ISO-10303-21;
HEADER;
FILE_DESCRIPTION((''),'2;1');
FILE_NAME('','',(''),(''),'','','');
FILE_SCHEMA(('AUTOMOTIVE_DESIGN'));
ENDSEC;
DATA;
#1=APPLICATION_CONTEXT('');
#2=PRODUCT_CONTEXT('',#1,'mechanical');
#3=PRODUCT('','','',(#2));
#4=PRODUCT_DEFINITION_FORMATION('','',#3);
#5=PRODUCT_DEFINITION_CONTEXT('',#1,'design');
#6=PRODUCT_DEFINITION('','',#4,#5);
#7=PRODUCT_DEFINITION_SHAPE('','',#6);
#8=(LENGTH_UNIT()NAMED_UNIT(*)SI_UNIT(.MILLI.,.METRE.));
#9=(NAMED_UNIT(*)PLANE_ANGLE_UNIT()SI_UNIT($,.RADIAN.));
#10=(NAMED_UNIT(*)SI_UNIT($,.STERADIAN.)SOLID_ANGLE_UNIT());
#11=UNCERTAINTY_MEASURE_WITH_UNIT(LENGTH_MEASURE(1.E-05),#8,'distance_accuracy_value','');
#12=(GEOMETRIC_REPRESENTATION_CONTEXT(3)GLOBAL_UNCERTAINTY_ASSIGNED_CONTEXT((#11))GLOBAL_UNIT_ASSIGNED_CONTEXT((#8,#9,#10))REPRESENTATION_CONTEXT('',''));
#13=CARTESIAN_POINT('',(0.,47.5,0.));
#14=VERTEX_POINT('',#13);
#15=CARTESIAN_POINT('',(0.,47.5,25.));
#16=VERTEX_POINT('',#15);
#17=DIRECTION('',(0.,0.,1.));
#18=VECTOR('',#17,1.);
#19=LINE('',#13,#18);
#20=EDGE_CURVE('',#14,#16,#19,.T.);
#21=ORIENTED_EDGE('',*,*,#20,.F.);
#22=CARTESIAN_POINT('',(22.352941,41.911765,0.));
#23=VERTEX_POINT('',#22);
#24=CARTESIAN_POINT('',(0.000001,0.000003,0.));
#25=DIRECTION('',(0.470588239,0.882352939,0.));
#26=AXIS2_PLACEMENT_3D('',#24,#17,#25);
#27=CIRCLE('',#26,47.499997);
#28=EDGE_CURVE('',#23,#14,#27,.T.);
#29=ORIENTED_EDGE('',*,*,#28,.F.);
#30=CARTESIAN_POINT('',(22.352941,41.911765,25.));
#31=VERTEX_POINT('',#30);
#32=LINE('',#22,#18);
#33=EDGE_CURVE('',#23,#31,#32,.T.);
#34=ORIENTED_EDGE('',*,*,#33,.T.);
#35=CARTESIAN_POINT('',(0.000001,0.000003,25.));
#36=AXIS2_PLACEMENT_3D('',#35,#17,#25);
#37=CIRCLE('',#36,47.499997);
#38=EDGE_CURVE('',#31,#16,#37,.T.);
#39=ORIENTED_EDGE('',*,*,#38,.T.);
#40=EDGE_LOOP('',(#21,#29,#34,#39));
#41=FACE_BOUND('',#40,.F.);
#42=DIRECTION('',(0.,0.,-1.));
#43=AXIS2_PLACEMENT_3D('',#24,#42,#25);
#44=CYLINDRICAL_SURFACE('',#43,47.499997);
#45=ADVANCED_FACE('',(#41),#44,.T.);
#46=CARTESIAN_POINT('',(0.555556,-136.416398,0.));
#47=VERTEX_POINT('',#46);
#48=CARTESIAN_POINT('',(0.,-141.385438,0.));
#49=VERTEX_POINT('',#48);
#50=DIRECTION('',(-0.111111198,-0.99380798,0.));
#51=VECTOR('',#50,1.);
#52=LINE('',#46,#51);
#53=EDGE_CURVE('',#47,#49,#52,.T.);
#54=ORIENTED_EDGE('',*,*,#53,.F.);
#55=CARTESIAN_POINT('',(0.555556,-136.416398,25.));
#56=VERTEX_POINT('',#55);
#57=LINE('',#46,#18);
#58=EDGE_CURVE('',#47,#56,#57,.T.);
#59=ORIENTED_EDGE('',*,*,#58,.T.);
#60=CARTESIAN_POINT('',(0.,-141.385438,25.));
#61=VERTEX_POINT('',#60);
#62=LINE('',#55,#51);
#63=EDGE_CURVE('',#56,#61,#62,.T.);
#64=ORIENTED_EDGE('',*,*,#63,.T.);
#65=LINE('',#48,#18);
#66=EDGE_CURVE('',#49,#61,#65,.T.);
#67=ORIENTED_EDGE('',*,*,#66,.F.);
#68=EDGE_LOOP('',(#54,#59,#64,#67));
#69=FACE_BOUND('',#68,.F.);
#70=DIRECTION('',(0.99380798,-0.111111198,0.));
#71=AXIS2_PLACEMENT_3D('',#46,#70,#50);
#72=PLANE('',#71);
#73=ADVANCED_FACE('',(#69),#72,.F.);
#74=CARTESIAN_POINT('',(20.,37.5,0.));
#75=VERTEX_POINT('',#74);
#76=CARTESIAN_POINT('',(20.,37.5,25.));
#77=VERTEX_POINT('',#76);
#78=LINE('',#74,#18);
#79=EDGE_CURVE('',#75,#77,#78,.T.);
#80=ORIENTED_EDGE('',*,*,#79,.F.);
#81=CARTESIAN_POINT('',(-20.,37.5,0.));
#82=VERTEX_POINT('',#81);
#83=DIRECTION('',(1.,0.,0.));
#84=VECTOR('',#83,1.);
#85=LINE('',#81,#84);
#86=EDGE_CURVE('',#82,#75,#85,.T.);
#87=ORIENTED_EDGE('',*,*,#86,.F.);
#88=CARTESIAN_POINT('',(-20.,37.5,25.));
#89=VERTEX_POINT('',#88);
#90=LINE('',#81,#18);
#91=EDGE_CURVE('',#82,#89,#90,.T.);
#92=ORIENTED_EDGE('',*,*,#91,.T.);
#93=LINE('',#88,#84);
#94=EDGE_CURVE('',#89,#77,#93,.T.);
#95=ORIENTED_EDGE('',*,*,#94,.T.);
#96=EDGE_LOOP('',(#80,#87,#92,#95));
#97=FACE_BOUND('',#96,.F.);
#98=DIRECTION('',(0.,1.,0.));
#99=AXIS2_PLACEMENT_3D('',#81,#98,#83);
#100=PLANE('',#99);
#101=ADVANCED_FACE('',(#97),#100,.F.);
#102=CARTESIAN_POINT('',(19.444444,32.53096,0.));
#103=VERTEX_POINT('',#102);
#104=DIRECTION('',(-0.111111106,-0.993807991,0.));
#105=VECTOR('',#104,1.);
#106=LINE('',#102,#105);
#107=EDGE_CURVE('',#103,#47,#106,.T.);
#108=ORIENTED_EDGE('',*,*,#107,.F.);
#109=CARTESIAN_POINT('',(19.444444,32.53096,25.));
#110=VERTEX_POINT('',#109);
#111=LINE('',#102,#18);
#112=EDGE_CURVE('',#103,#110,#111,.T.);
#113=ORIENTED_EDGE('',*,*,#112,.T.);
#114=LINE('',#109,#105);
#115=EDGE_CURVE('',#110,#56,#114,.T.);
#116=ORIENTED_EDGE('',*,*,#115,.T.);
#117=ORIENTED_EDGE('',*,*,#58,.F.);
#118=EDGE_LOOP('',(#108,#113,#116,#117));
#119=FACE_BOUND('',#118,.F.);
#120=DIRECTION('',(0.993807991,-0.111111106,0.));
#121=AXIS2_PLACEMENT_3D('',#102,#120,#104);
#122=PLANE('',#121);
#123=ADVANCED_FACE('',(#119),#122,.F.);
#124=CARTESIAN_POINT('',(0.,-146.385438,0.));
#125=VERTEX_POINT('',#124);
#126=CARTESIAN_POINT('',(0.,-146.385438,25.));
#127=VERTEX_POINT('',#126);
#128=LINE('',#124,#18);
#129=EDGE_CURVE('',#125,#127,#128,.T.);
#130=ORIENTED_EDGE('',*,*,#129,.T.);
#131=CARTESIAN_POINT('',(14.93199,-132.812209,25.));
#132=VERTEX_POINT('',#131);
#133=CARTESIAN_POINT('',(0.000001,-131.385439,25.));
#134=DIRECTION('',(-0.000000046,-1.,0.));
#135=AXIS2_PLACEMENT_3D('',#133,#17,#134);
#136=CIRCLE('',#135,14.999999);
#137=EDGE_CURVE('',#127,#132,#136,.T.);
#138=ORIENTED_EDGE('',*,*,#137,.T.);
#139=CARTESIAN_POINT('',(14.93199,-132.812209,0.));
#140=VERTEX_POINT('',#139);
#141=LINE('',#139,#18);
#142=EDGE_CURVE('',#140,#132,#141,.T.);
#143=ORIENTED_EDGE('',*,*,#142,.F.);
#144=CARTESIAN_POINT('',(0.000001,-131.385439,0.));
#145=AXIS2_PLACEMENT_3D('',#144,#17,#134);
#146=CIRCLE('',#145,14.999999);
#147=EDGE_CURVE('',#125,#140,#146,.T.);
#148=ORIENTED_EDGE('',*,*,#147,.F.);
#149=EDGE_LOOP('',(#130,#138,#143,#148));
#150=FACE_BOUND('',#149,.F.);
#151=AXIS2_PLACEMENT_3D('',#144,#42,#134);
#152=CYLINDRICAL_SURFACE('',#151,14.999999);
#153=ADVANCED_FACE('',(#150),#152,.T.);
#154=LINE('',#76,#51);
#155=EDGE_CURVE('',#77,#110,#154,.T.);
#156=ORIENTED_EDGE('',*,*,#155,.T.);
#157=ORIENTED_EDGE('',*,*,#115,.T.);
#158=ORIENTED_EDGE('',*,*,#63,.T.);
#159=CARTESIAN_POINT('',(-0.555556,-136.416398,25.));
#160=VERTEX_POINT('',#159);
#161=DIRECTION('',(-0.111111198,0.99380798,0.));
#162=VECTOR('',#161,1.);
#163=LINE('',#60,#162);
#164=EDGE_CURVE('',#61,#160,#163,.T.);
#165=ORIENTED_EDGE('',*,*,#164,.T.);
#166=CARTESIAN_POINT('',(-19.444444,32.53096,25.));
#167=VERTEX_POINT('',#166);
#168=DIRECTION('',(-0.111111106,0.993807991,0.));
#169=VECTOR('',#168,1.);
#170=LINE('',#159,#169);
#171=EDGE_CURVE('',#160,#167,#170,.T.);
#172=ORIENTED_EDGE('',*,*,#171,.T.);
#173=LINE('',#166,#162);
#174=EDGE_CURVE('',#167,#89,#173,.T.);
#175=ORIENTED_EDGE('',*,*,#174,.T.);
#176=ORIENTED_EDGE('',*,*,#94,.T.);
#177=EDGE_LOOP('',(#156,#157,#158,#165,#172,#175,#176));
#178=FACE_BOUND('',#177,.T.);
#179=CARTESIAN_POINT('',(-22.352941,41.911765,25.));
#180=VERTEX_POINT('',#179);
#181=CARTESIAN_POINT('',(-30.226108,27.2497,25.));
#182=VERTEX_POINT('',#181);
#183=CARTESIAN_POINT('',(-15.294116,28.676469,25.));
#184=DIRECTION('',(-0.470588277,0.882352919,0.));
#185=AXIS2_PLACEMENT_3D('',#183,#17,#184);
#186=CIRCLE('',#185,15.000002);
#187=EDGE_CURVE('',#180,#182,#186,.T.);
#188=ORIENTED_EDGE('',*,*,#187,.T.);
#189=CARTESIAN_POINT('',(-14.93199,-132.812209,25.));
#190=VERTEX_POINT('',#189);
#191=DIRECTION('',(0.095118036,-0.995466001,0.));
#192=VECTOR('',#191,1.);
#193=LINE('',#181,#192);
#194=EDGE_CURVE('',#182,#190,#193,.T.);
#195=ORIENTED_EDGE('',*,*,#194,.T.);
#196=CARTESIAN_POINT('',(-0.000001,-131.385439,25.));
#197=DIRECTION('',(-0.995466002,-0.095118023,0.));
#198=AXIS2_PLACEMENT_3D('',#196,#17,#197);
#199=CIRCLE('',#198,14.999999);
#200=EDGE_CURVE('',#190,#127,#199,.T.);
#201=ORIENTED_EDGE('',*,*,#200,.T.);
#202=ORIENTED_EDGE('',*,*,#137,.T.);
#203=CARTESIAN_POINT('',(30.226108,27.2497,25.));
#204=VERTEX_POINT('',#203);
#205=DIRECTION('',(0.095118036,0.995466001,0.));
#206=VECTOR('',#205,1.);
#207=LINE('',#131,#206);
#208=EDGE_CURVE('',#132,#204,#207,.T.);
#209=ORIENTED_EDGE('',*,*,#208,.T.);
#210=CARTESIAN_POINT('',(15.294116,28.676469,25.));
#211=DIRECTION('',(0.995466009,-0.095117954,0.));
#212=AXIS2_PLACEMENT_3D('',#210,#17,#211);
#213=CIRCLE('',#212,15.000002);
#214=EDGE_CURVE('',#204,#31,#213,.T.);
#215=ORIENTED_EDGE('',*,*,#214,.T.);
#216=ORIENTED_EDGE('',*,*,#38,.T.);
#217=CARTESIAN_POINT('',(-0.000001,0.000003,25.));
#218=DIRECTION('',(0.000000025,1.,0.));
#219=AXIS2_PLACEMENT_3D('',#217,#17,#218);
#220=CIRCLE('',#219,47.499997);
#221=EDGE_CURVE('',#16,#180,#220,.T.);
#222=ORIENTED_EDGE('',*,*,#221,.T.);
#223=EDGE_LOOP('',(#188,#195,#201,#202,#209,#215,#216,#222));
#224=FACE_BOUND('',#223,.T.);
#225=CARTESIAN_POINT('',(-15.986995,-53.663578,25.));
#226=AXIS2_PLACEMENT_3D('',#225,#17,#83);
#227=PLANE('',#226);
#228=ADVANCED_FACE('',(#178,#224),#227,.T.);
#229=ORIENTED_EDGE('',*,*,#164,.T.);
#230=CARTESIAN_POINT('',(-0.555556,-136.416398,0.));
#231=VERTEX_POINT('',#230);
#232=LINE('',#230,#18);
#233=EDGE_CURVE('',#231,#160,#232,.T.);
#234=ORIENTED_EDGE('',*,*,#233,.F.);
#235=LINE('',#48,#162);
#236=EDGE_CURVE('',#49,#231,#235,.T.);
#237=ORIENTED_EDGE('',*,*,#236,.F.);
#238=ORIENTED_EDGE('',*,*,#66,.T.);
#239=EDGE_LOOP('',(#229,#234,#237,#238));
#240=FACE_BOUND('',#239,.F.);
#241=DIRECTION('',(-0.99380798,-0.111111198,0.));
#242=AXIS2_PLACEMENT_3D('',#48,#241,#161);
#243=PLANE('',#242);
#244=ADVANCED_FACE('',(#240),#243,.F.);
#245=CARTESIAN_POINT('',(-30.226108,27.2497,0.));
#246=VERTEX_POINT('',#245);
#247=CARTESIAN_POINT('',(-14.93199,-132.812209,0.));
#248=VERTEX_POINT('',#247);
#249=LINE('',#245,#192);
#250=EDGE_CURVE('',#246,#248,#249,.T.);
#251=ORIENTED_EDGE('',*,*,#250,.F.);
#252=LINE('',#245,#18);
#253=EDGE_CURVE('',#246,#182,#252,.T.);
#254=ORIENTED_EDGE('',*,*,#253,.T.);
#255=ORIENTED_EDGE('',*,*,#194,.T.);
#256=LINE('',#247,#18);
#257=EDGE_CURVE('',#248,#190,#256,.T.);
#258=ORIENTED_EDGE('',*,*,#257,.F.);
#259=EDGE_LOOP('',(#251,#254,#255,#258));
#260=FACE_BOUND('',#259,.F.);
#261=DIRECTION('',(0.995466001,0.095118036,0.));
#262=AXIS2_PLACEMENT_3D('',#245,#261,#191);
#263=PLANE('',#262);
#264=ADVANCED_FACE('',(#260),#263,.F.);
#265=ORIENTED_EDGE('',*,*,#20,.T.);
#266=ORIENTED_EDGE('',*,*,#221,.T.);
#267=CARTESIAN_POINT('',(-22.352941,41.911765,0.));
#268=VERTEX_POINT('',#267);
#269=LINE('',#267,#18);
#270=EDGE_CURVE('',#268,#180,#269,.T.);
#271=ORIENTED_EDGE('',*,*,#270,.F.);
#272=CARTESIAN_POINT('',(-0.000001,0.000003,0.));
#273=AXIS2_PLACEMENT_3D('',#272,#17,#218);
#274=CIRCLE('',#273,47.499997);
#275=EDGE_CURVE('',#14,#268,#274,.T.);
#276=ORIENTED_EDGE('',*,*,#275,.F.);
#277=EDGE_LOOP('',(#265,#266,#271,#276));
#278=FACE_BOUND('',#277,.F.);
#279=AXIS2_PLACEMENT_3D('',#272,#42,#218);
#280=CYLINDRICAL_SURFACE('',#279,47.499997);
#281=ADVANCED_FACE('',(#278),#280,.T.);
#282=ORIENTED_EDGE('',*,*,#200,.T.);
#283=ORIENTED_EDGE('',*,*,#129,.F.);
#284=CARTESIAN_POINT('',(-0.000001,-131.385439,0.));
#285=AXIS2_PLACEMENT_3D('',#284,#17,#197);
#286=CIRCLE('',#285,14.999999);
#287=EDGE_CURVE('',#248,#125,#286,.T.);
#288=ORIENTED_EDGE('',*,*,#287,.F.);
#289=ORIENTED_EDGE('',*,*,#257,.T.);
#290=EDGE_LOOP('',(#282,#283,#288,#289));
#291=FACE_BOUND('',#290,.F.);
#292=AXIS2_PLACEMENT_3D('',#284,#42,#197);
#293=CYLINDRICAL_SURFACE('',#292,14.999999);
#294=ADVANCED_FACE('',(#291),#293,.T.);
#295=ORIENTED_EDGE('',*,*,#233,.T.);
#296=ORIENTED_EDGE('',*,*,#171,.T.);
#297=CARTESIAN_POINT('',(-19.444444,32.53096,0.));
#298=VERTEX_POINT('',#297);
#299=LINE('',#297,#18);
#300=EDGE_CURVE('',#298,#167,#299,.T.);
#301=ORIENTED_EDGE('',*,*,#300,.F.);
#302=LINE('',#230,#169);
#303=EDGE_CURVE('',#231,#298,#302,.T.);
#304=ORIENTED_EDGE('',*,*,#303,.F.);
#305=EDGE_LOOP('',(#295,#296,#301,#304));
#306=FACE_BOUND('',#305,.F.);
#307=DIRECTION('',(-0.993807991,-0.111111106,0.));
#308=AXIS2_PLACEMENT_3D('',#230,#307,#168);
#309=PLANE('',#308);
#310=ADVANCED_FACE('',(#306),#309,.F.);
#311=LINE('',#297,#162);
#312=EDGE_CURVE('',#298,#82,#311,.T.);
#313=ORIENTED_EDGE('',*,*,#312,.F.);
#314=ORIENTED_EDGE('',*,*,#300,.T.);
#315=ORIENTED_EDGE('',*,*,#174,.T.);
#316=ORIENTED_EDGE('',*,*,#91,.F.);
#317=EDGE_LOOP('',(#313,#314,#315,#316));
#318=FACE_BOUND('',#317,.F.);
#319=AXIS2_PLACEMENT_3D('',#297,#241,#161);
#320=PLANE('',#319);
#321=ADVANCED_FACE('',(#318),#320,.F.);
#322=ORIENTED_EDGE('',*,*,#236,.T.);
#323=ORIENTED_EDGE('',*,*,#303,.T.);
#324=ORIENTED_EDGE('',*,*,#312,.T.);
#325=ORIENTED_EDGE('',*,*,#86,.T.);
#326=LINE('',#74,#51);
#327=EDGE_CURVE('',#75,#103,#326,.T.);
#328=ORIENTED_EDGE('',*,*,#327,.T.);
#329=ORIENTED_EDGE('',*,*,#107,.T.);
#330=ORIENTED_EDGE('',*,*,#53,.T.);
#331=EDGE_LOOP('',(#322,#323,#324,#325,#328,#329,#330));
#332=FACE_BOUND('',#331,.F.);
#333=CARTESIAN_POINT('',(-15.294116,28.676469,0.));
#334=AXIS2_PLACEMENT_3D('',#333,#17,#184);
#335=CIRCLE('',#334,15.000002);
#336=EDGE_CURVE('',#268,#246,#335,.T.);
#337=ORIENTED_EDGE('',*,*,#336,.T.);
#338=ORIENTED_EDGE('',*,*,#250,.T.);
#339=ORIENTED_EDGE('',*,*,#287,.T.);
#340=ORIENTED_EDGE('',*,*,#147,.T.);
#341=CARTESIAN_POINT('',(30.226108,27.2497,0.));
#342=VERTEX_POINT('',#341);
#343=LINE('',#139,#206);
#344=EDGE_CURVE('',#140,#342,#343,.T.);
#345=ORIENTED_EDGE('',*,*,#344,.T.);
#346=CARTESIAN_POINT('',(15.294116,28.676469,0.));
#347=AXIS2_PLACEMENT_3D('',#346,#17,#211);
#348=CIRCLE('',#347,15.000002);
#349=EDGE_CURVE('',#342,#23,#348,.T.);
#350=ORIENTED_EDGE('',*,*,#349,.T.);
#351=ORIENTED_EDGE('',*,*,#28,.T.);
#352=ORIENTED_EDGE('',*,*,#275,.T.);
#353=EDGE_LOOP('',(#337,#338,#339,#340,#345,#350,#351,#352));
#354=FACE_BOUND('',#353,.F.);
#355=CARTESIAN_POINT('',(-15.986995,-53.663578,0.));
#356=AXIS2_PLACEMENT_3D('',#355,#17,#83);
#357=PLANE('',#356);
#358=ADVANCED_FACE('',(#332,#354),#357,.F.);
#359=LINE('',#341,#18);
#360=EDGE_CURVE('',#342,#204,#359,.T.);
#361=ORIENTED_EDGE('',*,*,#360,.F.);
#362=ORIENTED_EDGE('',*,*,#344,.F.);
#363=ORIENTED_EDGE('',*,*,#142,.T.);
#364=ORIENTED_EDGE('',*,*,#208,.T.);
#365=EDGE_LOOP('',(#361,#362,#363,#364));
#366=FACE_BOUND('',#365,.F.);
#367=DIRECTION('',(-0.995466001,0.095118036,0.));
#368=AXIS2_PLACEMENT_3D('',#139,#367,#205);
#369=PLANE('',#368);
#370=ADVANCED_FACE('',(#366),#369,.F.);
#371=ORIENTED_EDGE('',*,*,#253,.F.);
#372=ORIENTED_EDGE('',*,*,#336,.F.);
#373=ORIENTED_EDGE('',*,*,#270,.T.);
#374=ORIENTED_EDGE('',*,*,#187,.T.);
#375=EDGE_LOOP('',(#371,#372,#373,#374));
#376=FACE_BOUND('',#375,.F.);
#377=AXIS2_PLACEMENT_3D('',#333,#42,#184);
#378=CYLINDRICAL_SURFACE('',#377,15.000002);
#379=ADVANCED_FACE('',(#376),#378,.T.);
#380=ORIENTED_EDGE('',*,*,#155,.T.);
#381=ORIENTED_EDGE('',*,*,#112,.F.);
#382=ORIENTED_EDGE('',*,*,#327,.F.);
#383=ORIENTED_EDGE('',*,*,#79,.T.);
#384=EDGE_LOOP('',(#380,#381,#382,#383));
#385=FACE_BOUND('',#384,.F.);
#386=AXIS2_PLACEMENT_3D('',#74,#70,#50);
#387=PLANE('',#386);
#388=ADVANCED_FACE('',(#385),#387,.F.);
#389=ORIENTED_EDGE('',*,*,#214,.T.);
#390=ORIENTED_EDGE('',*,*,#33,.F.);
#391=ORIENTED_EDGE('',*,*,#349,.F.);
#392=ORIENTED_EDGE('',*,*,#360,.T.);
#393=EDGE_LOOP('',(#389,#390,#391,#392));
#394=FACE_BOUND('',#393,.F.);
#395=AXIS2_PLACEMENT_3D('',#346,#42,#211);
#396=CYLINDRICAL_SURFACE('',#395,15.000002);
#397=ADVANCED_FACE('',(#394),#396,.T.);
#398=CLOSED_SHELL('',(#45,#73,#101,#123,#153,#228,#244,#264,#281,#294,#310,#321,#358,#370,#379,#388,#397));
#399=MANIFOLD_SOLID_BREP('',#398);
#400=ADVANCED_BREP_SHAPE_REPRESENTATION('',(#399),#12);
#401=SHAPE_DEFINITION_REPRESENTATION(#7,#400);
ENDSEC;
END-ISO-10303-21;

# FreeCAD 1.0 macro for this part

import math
import FreeCAD as App
import Part
import Sketcher

doc = App.newDocument("Part")
params = doc.addObject("Spreadsheet::Sheet", "Params")
for row, (alias, value) in enumerate([
    ("sketch1_radius", "15.000002 mm"),
    ("sketch1_radius2", "14.999999 mm"),
    ("sketch1_width", "40 mm"),
    ("sketch1_length", "170 mm"),
    ("sketch1_length2", "5 mm"),
    ("pad1_length", "25 mm"),
], start=1):
    params.set(f"A{row}", alias)
    params.set(f"B{row}", "=" + value)
    params.setAlias(f"B{row}", alias)

body = doc.addObject("PartDesign::Body", "Body")

sketch1 = doc.addObject("Sketcher::SketchObject", "Sketch")
body.addObject(sketch1)
sketch1.AttachmentSupport = (doc.XY_Plane, [""])
sketch1.MapMode = "FlatFace"
sketch1.addGeometry([
    Part.ArcOfCircle(Part.Circle(App.Vector(0, 0, 0), App.Vector(0, 0, 1), 47), math.radians(90), math.radians(118)),
    Part.ArcOfCircle(Part.Circle(App.Vector(-15, 29, 0), App.Vector(0, 0, 1), 15), math.radians(118), math.radians(185)),
    Part.LineSegment(App.Vector(-30, 27, 0), App.Vector(-15, -133, 0)),
    Part.ArcOfCircle(Part.Circle(App.Vector(0, -131, 0), App.Vector(0, 0, 1), 15), math.radians(-175), math.radians(-90)),
    Part.ArcOfCircle(Part.Circle(App.Vector(0, -131, 0), App.Vector(0, 0, 1), 15), math.radians(-90), math.radians(-5)),
    Part.LineSegment(App.Vector(15, -133, 0), App.Vector(30, 27, 0)),
    Part.ArcOfCircle(Part.Circle(App.Vector(15, 29, 0), App.Vector(0, 0, 1), 15), math.radians(-5), math.radians(62)),
    Part.ArcOfCircle(Part.Circle(App.Vector(0, 0, 0), App.Vector(0, 0, 1), 47), math.radians(62), math.radians(90)),
    Part.LineSegment(App.Vector(-1, -136, 0), App.Vector(-19, 33, 0)),
    Part.LineSegment(App.Vector(-19, 33, 0), App.Vector(-20, 38, 0)),
    Part.LineSegment(App.Vector(-20, 38, 0), App.Vector(20, 38, 0)),
    Part.LineSegment(App.Vector(20, 38, 0), App.Vector(19, 33, 0)),
    Part.LineSegment(App.Vector(19, 33, 0), App.Vector(1, -136, 0)),
    Part.LineSegment(App.Vector(1, -136, 0), App.Vector(0, -141, 0)),
    Part.LineSegment(App.Vector(0, -141, 0), App.Vector(-1, -136, 0)),
], False)
sketch1.addConstraint([
    Sketcher.Constraint("Tangent", 0, 2, 1, 1),
    Sketcher.Constraint("Tangent", 1, 2, 2, 1),
    Sketcher.Constraint("Tangent", 2, 2, 3, 1),
    Sketcher.Constraint("Tangent", 3, 2, 4, 1),
    Sketcher.Constraint("Tangent", 4, 2, 5, 1),
    Sketcher.Constraint("Tangent", 5, 2, 6, 1),
    Sketcher.Constraint("Tangent", 6, 2, 7, 1),
    Sketcher.Constraint("Tangent", 7, 2, 0, 1),
    Sketcher.Constraint("Coincident", 8, 2, 9, 1),
    Sketcher.Constraint("Coincident", 9, 2, 10, 1),
    Sketcher.Constraint("Coincident", 10, 2, 11, 1),
    Sketcher.Constraint("Coincident", 11, 2, 12, 1),
    Sketcher.Constraint("Coincident", 12, 2, 13, 1),
    Sketcher.Constraint("Coincident", 13, 2, 14, 1),
    Sketcher.Constraint("Coincident", 14, 2, 8, 1),
    Sketcher.Constraint("Horizontal", 10),
    Sketcher.Constraint("Coincident", 0, 3, -1, 1),
    Sketcher.Constraint("Equal", 3, 4),
    Sketcher.Constraint("Equal", 1, 6),
    Sketcher.Constraint("Equal", 0, 7),
    Sketcher.Constraint("Symmetric", 2, 2, 4, 2, -2),
    Sketcher.Constraint("Symmetric", 8, 2, 11, 2, -2),
    Sketcher.Constraint("Symmetric", 12, 2, 14, 2, -2),
    Sketcher.Constraint("PointOnObject", 3, 2, -2),
    Sketcher.Constraint("PointOnObject", 7, 2, -2),
    Sketcher.Constraint("PointOnObject", 13, 2, -2),
    Sketcher.Constraint("Parallel", 8, 9),
    Sketcher.Constraint("Parallel", 11, 12),
    Sketcher.Constraint("Parallel", 12, 13),
    Sketcher.Constraint("Equal", 11, 13),
    Sketcher.Constraint("Radius", 1, 15.000002),
    Sketcher.Constraint("Radius", 3, 14.999999),
    Sketcher.Constraint("DistanceX", 10, 1, 10, 2, 40.0),
    Sketcher.Constraint("Distance", 8, 170.0),
    Sketcher.Constraint("Distance", 9, 5.0),
    Sketcher.Constraint("DistanceY", 9, 2, 7, 2, 10.0),
    Sketcher.Constraint("DistanceY", 3, 2, 13, 2, 5.0),
    Sketcher.Constraint("DistanceY", -1, 1, 7, 2, 47.5),
    Sketcher.Constraint("DistanceY", -1, 1, 1, 2, 27.2497),
])
sketch1.setExpression("Constraints[30]", "Params.sketch1_radius")
sketch1.setExpression("Constraints[31]", "Params.sketch1_radius2")
sketch1.setExpression("Constraints[32]", "Params.sketch1_width")
sketch1.setExpression("Constraints[33]", "Params.sketch1_length")
sketch1.setExpression("Constraints[34]", "Params.sketch1_length2")
pad1 = doc.addObject("PartDesign::Pad", "Pad")
body.addObject(pad1)
pad1.Profile = sketch1
pad1.setExpression("Length", "Params.pad1_length")

doc.recompute()
